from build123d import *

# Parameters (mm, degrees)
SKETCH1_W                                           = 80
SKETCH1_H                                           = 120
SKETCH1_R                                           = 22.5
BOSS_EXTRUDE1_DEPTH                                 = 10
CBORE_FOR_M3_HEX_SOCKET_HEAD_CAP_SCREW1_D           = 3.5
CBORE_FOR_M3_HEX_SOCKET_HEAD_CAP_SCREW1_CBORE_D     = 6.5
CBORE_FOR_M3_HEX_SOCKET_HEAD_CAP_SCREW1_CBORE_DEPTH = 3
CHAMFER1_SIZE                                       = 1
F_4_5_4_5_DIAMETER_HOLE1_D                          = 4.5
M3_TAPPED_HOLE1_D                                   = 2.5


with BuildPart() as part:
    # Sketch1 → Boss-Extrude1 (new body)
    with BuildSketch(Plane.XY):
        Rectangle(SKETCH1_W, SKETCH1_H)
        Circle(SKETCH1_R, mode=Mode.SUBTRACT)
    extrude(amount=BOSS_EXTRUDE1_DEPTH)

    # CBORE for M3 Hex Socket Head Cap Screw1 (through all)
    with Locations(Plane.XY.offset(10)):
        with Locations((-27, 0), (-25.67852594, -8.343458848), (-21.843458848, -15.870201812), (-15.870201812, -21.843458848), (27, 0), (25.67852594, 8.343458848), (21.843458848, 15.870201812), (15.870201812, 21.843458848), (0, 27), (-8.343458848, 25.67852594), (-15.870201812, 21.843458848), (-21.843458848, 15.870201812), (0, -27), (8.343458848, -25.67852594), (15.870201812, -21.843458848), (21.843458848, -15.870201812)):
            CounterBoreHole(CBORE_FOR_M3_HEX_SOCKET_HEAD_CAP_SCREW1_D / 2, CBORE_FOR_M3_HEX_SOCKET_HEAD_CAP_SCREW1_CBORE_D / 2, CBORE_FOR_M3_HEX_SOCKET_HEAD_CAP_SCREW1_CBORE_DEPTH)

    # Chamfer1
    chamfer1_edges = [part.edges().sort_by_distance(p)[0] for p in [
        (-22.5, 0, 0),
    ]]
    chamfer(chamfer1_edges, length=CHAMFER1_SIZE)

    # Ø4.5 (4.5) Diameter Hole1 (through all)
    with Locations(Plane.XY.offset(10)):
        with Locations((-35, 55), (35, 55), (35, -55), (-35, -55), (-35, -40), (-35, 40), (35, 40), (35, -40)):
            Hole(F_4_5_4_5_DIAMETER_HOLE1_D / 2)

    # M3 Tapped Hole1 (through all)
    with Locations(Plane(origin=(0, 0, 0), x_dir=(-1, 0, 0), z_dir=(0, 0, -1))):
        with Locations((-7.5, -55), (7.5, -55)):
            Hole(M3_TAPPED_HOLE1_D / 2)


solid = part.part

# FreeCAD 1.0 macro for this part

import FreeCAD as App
import Part
import Sketcher
Q = App.Units.Quantity


def edges_at(feature, points):
    """Names of the edges that pass closest to the given points."""
    edges = feature.Shape.Edges
    near = lambda p: min(range(len(edges)), key=lambda i: edges[i].distToShape(Part.Vertex(*p))[0])
    return sorted({f"Edge{near(p) + 1}" for p in points})

doc = App.newDocument("Part")
body = doc.addObject("PartDesign::Body", "Body")

sketch1 = body.newObject("Sketcher::SketchObject", "Sketch")
sketch1.AttachmentSupport = (doc.getObject("XY_Plane"), [""])
sketch1.MapMode = "FlatFace"
sketch1.addGeometry([
    Part.LineSegment(App.Vector(-40, 60, 0), App.Vector(-40, -60, 0)),
    Part.LineSegment(App.Vector(-40, -60, 0), App.Vector(40, -60, 0)),
    Part.LineSegment(App.Vector(40, -60, 0), App.Vector(40, 60, 0)),
    Part.LineSegment(App.Vector(40, 60, 0), App.Vector(-40, 60, 0)),
    Part.Circle(App.Vector(0, 0, 0), App.Vector(0, 0, 1), 22.5),
], False)
sketch1.addConstraint([
    Sketcher.Constraint("Coincident", 0, 2, 1, 1),
    Sketcher.Constraint("Coincident", 1, 2, 2, 1),
    Sketcher.Constraint("Coincident", 2, 2, 3, 1),
    Sketcher.Constraint("Coincident", 3, 2, 0, 1),
    Sketcher.Constraint("Vertical", 0),
    Sketcher.Constraint("Horizontal", 1),
    Sketcher.Constraint("Vertical", 2),
    Sketcher.Constraint("Horizontal", 3),
    Sketcher.Constraint("Coincident", 4, 3, -1, 1),
    Sketcher.Constraint("Symmetric", 0, 2, 2, 2, -1, 1),
    Sketcher.Constraint("Diameter", 4, Q("45 mm")),
    Sketcher.Constraint("DistanceX", 1, 1, 1, 2, Q("80 mm")),
    Sketcher.Constraint("DistanceY", 0, 2, 0, 1, Q("120 mm")),
])
pad1 = body.newObject("PartDesign::Pad", "Pad")
pad1.Profile = sketch1
pad1.Length = 10

sketch2 = body.newObject("Sketcher::SketchObject", "Sketch001")
sketch2.AttachmentSupport = (doc.getObject("XY_Plane"), [""])
sketch2.MapMode = "FlatFace"
sketch2.AttachmentOffset = App.Placement(App.Vector(0, 0, 10), App.Rotation())
sketch2.addGeometry([
    Part.Circle(App.Vector(-27, 0, 0), App.Vector(0, 0, 1), 1.75),
    Part.Circle(App.Vector(-25.678526, -8.343459, 0), App.Vector(0, 0, 1), 1.75),
    Part.Circle(App.Vector(-21.843459, -15.870202, 0), App.Vector(0, 0, 1), 1.75),
    Part.Circle(App.Vector(-15.870202, -21.843459, 0), App.Vector(0, 0, 1), 1.75),
    Part.Circle(App.Vector(27, 0, 0), App.Vector(0, 0, 1), 1.75),
    Part.Circle(App.Vector(25.678526, 8.343459, 0), App.Vector(0, 0, 1), 1.75),
    Part.Circle(App.Vector(21.843459, 15.870202, 0), App.Vector(0, 0, 1), 1.75),
    Part.Circle(App.Vector(15.870202, 21.843459, 0), App.Vector(0, 0, 1), 1.75),
    Part.Circle(App.Vector(0, 27, 0), App.Vector(0, 0, 1), 1.75),
    Part.Circle(App.Vector(-8.343459, 25.678526, 0), App.Vector(0, 0, 1), 1.75),
    Part.Circle(App.Vector(-15.870202, 21.843459, 0), App.Vector(0, 0, 1), 1.75),
    Part.Circle(App.Vector(-21.843459, 15.870202, 0), App.Vector(0, 0, 1), 1.75),
    Part.Circle(App.Vector(0, -27, 0), App.Vector(0, 0, 1), 1.75),
    Part.Circle(App.Vector(8.343459, -25.678526, 0), App.Vector(0, 0, 1), 1.75),
    Part.Circle(App.Vector(15.870202, -21.843459, 0), App.Vector(0, 0, 1), 1.75),
    Part.Circle(App.Vector(21.843459, -15.870202, 0), App.Vector(0, 0, 1), 1.75),
], False)
sketch2.addConstraint([
    Sketcher.Constraint("Equal", 0, 1),
    Sketcher.Constraint("Equal", 1, 2),
    Sketcher.Constraint("Equal", 2, 3),
    Sketcher.Constraint("Equal", 3, 4),
    Sketcher.Constraint("Equal", 4, 5),
    Sketcher.Constraint("Equal", 5, 6),
    Sketcher.Constraint("Equal", 6, 7),
    Sketcher.Constraint("Equal", 7, 8),
    Sketcher.Constraint("Equal", 8, 9),
    Sketcher.Constraint("Equal", 9, 10),
    Sketcher.Constraint("Equal", 10, 11),
    Sketcher.Constraint("Equal", 11, 12),
    Sketcher.Constraint("Equal", 12, 13),
    Sketcher.Constraint("Equal", 13, 14),
    Sketcher.Constraint("Equal", 14, 15),
    Sketcher.Constraint("Symmetric", 0, 3, 4, 3, -1, 1),
    Sketcher.Constraint("Symmetric", 1, 3, 5, 3, -1, 1),
    Sketcher.Constraint("Symmetric", 2, 3, 6, 3, -1, 1),
    Sketcher.Constraint("Symmetric", 3, 3, 7, 3, -1, 1),
    Sketcher.Constraint("Symmetric", 8, 3, 12, 3, -1, 1),
    Sketcher.Constraint("Symmetric", 9, 3, 13, 3, -1, 1),
    Sketcher.Constraint("Symmetric", 10, 3, 14, 3, -1, 1),
    Sketcher.Constraint("Symmetric", 11, 3, 15, 3, -1, 1),
    Sketcher.Constraint("Symmetric", 7, 3, 10, 3, -2),
    Sketcher.Constraint("Symmetric", 6, 3, 11, 3, -2),
    Sketcher.Constraint("PointOnObject", 0, 3, -1),
    Sketcher.Constraint("PointOnObject", 8, 3, -2),
    Sketcher.Constraint("Diameter", 0, Q("3.5 mm")),
    Sketcher.Constraint("DistanceX", 0, 3, -1, 1, Q("27 mm")),
    Sketcher.Constraint("DistanceY", -1, 1, 8, 3, Q("27 mm")),
    Sketcher.Constraint("DistanceY", 3, 3, 1, 3, Q("13.5 mm")),
    Sketcher.Constraint("DistanceX", 11, 3, 9, 3, Q("13.5 mm")),
    Sketcher.Constraint("DistanceY", 2, 3, -1, 1, Q("15.870202 mm")),
    Sketcher.Constraint("DistanceX", 3, 3, -1, 1, Q("15.870202 mm")),
    Sketcher.Constraint("DistanceY", 1, 3, -1, 1, Q("8.343459 mm")),
    Sketcher.Constraint("DistanceX", 2, 3, -1, 1, Q("21.843459 mm")),
    Sketcher.Constraint("DistanceX", 1, 3, 5, 3, Q("51.357052 mm")),
    Sketcher.Constraint("DistanceY", -1, 1, 9, 3, Q("25.678526 mm")),
])
doc.recompute()
hole = body.newObject("PartDesign::Hole", "Hole")
hole.Profile = sketch2
hole.ThreadType = "None"
hole.Diameter = 3.5
hole.DepthType = "ThroughAll"
hole.HoleCutType = "Counterbore"
hole.HoleCutDiameter = 6.5
hole.HoleCutDepth = 3
doc.recompute()

chamfer = body.newObject("PartDesign::Chamfer", "Chamfer")
chamfer.Base = (hole, edges_at(hole, [(-22.5, 0, 0)]))
chamfer.Size = 1

sketch3 = body.newObject("Sketcher::SketchObject", "Sketch002")
sketch3.AttachmentSupport = (doc.getObject("XY_Plane"), [""])
sketch3.MapMode = "FlatFace"
sketch3.AttachmentOffset = App.Placement(App.Vector(0, 0, 10), App.Rotation())
sketch3.addGeometry([
    Part.Circle(App.Vector(-35, 55, 0), App.Vector(0, 0, 1), 2.25),
    Part.Circle(App.Vector(35, 55, 0), App.Vector(0, 0, 1), 2.25),
    Part.Circle(App.Vector(35, -55, 0), App.Vector(0, 0, 1), 2.25),
    Part.Circle(App.Vector(-35, -55, 0), App.Vector(0, 0, 1), 2.25),
    Part.Circle(App.Vector(-35, -40, 0), App.Vector(0, 0, 1), 2.25),
    Part.Circle(App.Vector(-35, 40, 0), App.Vector(0, 0, 1), 2.25),
    Part.Circle(App.Vector(35, 40, 0), App.Vector(0, 0, 1), 2.25),
    Part.Circle(App.Vector(35, -40, 0), App.Vector(0, 0, 1), 2.25),
], False)
sketch3.addConstraint([
    Sketcher.Constraint("Equal", 0, 1),
    Sketcher.Constraint("Equal", 1, 2),
    Sketcher.Constraint("Equal", 2, 3),
    Sketcher.Constraint("Equal", 3, 4),
    Sketcher.Constraint("Equal", 4, 5),
    Sketcher.Constraint("Equal", 5, 6),
    Sketcher.Constraint("Equal", 6, 7),
    Sketcher.Constraint("Symmetric", 0, 3, 2, 3, -1, 1),
    Sketcher.Constraint("Symmetric", 1, 3, 3, 3, -1, 1),
    Sketcher.Constraint("Symmetric", 4, 3, 6, 3, -1, 1),
    Sketcher.Constraint("Symmetric", 5, 3, 7, 3, -1, 1),
    Sketcher.Constraint("Symmetric", 0, 3, 1, 3, -2),
    Sketcher.Constraint("Symmetric", 5, 3, 6, 3, -2),
    Sketcher.Constraint("Vertical", 3, 3, 4, 3),
    Sketcher.Constraint("Diameter", 0, Q("4.5 mm")),
    Sketcher.Constraint("DistanceX", 0, 3, -1, 1, Q("35 mm")),
    Sketcher.Constraint("DistanceY", -1, 1, 0, 3, Q("55 mm")),
    Sketcher.Constraint("DistanceY", 4, 3, -1, 1, Q("40 mm")),
])
doc.recompute()
hole2 = body.newObject("PartDesign::Hole", "Hole001")
hole2.Profile = sketch3
hole2.ThreadType = "None"
hole2.Diameter = 4.5
hole2.DepthType = "ThroughAll"

sketch4 = body.newObject("Sketcher::SketchObject", "Sketch003")
sketch4.AttachmentSupport = (doc.getObject("XY_Plane"), [""])
sketch4.MapMode = "FlatFace"
sketch4.addGeometry([
    Part.Circle(App.Vector(7.5, -55, 0), App.Vector(0, 0, 1), 1.25),
    Part.Circle(App.Vector(-7.5, -55, 0), App.Vector(0, 0, 1), 1.25),
], False)
sketch4.addConstraint([
    Sketcher.Constraint("Equal", 0, 1),
    Sketcher.Constraint("Symmetric", 0, 3, 1, 3, -2),
    Sketcher.Constraint("Diameter", 0, Q("2.5 mm")),
    Sketcher.Constraint("DistanceY", 0, 3, -1, 1, Q("55 mm")),
    Sketcher.Constraint("DistanceX", 1, 3, 0, 3, Q("15 mm")),
])
doc.recompute()
hole3 = body.newObject("PartDesign::Hole", "Hole002")
hole3.Profile = sketch4
hole3.ThreadType = "None"
hole3.Diameter = 2.5
hole3.DepthType = "ThroughAll"
hole3.Reversed = True

doc.recompute()
